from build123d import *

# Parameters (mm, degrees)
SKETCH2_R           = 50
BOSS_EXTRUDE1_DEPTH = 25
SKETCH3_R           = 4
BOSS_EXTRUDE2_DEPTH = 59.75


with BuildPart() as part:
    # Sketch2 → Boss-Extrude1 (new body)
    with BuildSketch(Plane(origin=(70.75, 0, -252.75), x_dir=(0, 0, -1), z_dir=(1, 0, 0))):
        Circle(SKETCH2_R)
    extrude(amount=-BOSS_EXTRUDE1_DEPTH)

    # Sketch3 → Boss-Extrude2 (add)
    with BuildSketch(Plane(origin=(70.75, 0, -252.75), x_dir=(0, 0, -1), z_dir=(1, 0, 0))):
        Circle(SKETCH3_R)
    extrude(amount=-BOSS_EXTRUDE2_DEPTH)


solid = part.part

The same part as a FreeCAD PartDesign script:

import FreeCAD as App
import Part
import Sketcher
from FreeCAD import Vector

doc = App.newDocument("Part")
body = doc.addObject("PartDesign::Body", "Body")

# Sketch on YZ plane
sketch1 = doc.addObject("Sketcher::SketchObject", "Sketch")
body.addObject(sketch1)
sketch1.AttachmentSupport = (doc.YZ_Plane, [""])
sketch1.MapMode = "FlatFace"
sketch1.AttachmentOffset = App.Placement(Vector(0, 0, 70.75), App.Rotation())
sketch1.addGeometry(Part.Circle(Vector(0, -253, 0), Vector(0, 0, 1), 50), False)
sketch1.addConstraint(Sketcher.Constraint("PointOnObject", 0, 3, -2))
sketch1.addConstraint(Sketcher.Constraint("Diameter", 0, 100.0))
sketch1.addConstraint(Sketcher.Constraint("DistanceY", 0, 3, -1, 1, 252.75))
pad1 = doc.addObject("PartDesign::Pad", "Pad")
body.addObject(pad1)
pad1.Profile = sketch1
pad1.Length = 25
pad1.Reversed = True

# Sketch on YZ plane
sketch2 = doc.addObject("Sketcher::SketchObject", "Sketch001")
body.addObject(sketch2)
sketch2.AttachmentSupport = (doc.YZ_Plane, [""])
sketch2.MapMode = "FlatFace"
sketch2.AttachmentOffset = App.Placement(Vector(0, 0, 70.75), App.Rotation())
sketch2.addGeometry(Part.Circle(Vector(0, -252.8, 0), Vector(0, 0, 1), 4), False)
sketch2.addConstraint(Sketcher.Constraint("PointOnObject", 0, 3, -2))
sketch2.addConstraint(Sketcher.Constraint("Diameter", 0, 8.0))
sketch2.addConstraint(Sketcher.Constraint("DistanceY", 0, 3, -1, 1, 252.75))
pad2 = doc.addObject("PartDesign::Pad", "Pad001")
body.addObject(pad2)
pad2.Profile = sketch2
pad2.Length = 59.75
pad2.Reversed = True

doc.recompute()
